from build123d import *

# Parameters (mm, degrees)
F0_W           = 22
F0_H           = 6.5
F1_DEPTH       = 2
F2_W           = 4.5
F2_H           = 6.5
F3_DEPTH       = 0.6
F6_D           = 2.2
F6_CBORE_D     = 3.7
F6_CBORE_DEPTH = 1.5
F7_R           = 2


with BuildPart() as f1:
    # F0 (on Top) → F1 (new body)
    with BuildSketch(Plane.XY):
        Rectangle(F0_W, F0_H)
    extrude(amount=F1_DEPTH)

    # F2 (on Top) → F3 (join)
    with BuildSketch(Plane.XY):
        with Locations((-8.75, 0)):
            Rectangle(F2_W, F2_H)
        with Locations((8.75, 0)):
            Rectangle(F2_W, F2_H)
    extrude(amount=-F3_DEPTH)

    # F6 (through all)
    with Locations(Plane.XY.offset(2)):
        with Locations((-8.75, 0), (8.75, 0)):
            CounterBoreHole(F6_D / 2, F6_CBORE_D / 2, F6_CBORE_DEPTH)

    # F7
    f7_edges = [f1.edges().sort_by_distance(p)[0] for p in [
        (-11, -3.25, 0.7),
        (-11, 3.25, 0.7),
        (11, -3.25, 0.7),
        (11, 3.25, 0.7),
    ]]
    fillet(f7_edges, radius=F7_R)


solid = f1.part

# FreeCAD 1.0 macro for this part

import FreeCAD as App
import Part
import Sketcher


def edges_at(feature, points):
    """Names of the edges that pass closest to the given points."""
    edges = feature.Shape.Edges
    near = lambda p: min(range(len(edges)), key=lambda i: edges[i].distToShape(Part.Vertex(*p))[0])
    return sorted({f"Edge{near(p) + 1}" for p in points})

doc = App.newDocument("Part")
body = doc.addObject("PartDesign::Body", "Body")

# Sketch on XY plane
sketch1 = body.newObject("Sketcher::SketchObject", "Sketch")
sketch1.AttachmentSupport = (doc.getObject("XY_Plane"), [""])
sketch1.MapMode = "FlatFace"
sketch1.addGeometry([
    Part.LineSegment(App.Vector(-11, 3, 0), App.Vector(-11, -3, 0)),
    Part.LineSegment(App.Vector(-11, -3, 0), App.Vector(11, -3, 0)),
    Part.LineSegment(App.Vector(11, -3, 0), App.Vector(11, 3, 0)),
    Part.LineSegment(App.Vector(11, 3, 0), App.Vector(-11, 3, 0)),
], False)
sketch1.addConstraint([
    Sketcher.Constraint("Coincident", 0, 2, 1, 1),
    Sketcher.Constraint("Coincident", 1, 2, 2, 1),
    Sketcher.Constraint("Coincident", 2, 2, 3, 1),
    Sketcher.Constraint("Coincident", 3, 2, 0, 1),
    Sketcher.Constraint("Vertical", 0),
    Sketcher.Constraint("Horizontal", 1),
    Sketcher.Constraint("Vertical", 2),
    Sketcher.Constraint("Horizontal", 3),
    Sketcher.Constraint("Symmetric", 0, 2, 2, 2, -1, 1),
    Sketcher.Constraint("DistanceX", 1, 1, 1, 2, 22.0),
    Sketcher.Constraint("DistanceY", 0, 2, 0, 1, 6.5),
])
pad1 = body.newObject("PartDesign::Pad", "Pad")
pad1.Profile = sketch1
pad1.Length = 2

# Sketch on XY plane
sketch2 = body.newObject("Sketcher::SketchObject", "Sketch001")
sketch2.AttachmentSupport = (doc.getObject("XY_Plane"), [""])
sketch2.MapMode = "FlatFace"
sketch2.addGeometry([
    Part.LineSegment(App.Vector(-11, 3.2, 0), App.Vector(-11, -3.2, 0)),  # 0
    Part.LineSegment(App.Vector(-11, -3.2, 0), App.Vector(-6.5, -3.2, 0)),  # 1
    Part.LineSegment(App.Vector(-6.5, -3.2, 0), App.Vector(-6.5, 3.2, 0)),  # 2
    Part.LineSegment(App.Vector(-6.5, 3.2, 0), App.Vector(-11, 3.2, 0)),  # 3
    Part.LineSegment(App.Vector(6.5, 3.2, 0), App.Vector(6.5, -3.2, 0)),  # 4
    Part.LineSegment(App.Vector(6.5, -3.2, 0), App.Vector(11, -3.2, 0)),  # 5
    Part.LineSegment(App.Vector(11, -3.2, 0), App.Vector(11, 3.2, 0)),  # 6
    Part.LineSegment(App.Vector(11, 3.2, 0), App.Vector(6.5, 3.2, 0)),  # 7
], False)
sketch2.addConstraint([
    Sketcher.Constraint("Coincident", 0, 2, 1, 1),
    Sketcher.Constraint("Coincident", 1, 2, 2, 1),
    Sketcher.Constraint("Coincident", 2, 2, 3, 1),
    Sketcher.Constraint("Coincident", 3, 2, 0, 1),
    Sketcher.Constraint("Coincident", 4, 2, 5, 1),
    Sketcher.Constraint("Coincident", 5, 2, 6, 1),
    Sketcher.Constraint("Coincident", 6, 2, 7, 1),
    Sketcher.Constraint("Coincident", 7, 2, 4, 1),
    Sketcher.Constraint("Vertical", 0),
    Sketcher.Constraint("Horizontal", 1),
    Sketcher.Constraint("Vertical", 2),
    Sketcher.Constraint("Horizontal", 3),
    Sketcher.Constraint("Vertical", 4),
    Sketcher.Constraint("Horizontal", 5),
    Sketcher.Constraint("Vertical", 6),
    Sketcher.Constraint("Horizontal", 7),
    Sketcher.Constraint("Symmetric", 2, 2, 4, 2, -1, 1),
    Sketcher.Constraint("Symmetric", 0, 2, 6, 2, -1, 1),
    Sketcher.Constraint("Horizontal", 1, 2, 4, 2),
    Sketcher.Constraint("DistanceX", 1, 1, 1, 2, 4.5),
    Sketcher.Constraint("DistanceY", 0, 2, 0, 1, 6.5),
    Sketcher.Constraint("DistanceX", 0, 2, -1, 1, 11.0),
])
pad2 = body.newObject("PartDesign::Pad", "Pad001")
pad2.Profile = sketch2
pad2.Length = 0.6
pad2.Reversed = True

# Sketch on XY plane
sketch3 = body.newObject("Sketcher::SketchObject", "Sketch002")
sketch3.AttachmentSupport = (doc.getObject("XY_Plane"), [""])
sketch3.MapMode = "FlatFace"
sketch3.AttachmentOffset = App.Placement(App.Vector(0, 0, 2), App.Rotation())
sketch3.addGeometry([
    Part.Circle(App.Vector(-8.8, 0, 0), App.Vector(0, 0, 1), 1.1),
    Part.Circle(App.Vector(8.8, 0, 0), App.Vector(0, 0, 1), 1.1),
], False)
sketch3.addConstraint([
    Sketcher.Constraint("Equal", 0, 1),
    Sketcher.Constraint("Symmetric", 0, 3, 1, 3, -1, 1),
    Sketcher.Constraint("PointOnObject", 0, 3, -1),
    Sketcher.Constraint("Diameter", 0, 2.2),
    Sketcher.Constraint("DistanceX", 0, 3, 1, 3, 17.5),
])
doc.recompute()
hole = body.newObject("PartDesign::Hole", "Hole")
hole.Profile = sketch3
hole.ThreadType = "None"
hole.Diameter = 2.2
hole.DepthType = "ThroughAll"
hole.HoleCutType = "Counterbore"
hole.HoleCutDiameter = 3.7
hole.HoleCutDepth = 1.5
doc.recompute()

fillet = body.newObject("PartDesign::Fillet", "Fillet")
fillet.Base = (hole, edges_at(hole, [
    (-11, -3.25, 0.7),
    (-11, 3.25, 0.7),
    (11, -3.25, 0.7),
    (11, 3.25, 0.7),
]))
fillet.Radius = 2

doc.recompute()
